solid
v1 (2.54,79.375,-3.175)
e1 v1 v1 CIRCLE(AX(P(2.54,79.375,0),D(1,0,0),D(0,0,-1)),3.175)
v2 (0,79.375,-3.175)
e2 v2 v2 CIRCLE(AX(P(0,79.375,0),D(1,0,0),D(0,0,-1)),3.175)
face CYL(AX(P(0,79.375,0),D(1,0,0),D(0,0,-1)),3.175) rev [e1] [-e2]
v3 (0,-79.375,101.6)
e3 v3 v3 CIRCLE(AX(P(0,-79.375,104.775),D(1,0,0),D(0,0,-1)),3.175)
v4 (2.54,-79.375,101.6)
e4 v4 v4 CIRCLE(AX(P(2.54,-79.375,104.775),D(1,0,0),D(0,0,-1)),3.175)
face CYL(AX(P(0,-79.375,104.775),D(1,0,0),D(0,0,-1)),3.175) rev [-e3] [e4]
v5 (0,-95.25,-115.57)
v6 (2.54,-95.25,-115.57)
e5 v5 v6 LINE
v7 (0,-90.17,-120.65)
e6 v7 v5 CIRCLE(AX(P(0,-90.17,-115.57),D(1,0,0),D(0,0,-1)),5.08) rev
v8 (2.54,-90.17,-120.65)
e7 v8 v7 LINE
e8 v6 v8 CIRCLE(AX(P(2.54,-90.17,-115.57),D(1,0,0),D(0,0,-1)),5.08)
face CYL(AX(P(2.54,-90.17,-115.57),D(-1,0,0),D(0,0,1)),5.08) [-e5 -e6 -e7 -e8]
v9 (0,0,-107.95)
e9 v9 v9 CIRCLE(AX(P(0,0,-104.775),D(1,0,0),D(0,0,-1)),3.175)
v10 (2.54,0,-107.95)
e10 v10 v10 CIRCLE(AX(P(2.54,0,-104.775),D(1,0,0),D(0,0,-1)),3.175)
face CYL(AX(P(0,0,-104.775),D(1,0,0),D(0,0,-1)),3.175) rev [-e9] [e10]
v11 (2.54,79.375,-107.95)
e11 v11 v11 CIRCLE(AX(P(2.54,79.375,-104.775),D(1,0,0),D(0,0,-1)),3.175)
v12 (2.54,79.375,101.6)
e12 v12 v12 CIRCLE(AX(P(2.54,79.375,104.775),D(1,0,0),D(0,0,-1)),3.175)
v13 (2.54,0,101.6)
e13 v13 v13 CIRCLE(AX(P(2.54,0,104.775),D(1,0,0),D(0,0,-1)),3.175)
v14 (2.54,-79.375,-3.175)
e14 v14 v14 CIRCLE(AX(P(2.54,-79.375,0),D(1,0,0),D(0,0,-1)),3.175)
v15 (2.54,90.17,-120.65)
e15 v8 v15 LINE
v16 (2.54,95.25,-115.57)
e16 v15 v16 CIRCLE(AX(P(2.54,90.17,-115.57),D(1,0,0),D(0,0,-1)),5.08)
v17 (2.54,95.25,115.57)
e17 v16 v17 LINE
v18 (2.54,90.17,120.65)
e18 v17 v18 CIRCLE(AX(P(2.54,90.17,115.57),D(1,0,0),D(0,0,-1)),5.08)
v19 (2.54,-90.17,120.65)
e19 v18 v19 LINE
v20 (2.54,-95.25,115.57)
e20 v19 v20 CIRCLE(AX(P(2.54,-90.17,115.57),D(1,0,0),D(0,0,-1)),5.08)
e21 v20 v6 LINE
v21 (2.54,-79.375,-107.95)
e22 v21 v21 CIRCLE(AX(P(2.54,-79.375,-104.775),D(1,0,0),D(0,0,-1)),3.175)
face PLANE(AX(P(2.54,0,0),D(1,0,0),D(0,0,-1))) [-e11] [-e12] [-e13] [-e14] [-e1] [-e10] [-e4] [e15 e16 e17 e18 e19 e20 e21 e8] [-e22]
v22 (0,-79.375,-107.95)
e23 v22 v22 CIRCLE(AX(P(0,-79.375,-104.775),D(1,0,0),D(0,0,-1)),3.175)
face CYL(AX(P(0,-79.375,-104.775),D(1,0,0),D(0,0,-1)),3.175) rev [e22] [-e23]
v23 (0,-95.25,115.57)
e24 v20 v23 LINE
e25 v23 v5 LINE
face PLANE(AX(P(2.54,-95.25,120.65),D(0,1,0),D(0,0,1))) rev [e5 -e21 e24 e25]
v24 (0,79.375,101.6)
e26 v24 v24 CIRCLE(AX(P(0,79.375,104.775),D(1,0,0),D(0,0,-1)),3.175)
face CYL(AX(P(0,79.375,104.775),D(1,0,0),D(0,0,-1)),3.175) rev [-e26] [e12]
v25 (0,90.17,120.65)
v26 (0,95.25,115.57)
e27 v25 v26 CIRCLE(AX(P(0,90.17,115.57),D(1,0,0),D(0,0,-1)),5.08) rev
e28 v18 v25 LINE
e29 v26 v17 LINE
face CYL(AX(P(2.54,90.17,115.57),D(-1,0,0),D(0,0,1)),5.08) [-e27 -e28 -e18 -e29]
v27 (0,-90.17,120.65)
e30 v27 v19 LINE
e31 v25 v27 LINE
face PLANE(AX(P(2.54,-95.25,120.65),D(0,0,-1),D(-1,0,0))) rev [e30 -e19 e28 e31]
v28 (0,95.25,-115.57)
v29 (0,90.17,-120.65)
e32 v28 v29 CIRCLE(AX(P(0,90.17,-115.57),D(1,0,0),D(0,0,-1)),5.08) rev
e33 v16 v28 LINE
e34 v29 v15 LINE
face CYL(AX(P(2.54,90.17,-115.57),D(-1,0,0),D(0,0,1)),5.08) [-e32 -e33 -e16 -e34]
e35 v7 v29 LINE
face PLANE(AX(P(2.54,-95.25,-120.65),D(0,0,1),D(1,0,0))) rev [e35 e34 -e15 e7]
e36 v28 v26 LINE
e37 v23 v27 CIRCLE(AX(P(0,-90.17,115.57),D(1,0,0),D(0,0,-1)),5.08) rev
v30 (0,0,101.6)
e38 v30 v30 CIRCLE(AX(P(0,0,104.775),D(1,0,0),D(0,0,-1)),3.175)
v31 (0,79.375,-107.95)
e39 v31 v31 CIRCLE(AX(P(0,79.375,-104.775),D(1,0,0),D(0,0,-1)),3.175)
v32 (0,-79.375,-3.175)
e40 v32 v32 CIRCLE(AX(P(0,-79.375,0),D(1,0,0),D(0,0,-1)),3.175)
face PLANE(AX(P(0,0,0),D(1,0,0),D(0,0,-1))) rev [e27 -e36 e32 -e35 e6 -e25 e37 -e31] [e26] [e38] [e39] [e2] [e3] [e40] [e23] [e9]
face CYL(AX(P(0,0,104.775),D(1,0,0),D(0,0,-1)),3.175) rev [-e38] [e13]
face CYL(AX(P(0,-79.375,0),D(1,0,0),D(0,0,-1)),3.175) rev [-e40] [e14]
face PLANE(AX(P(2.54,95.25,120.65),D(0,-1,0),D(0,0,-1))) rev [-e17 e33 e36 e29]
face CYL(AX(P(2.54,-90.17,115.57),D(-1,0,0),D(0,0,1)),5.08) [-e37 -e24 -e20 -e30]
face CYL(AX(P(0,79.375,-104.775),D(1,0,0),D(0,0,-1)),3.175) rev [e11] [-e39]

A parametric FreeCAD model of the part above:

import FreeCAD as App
import Part
import Sketcher
Q = App.Units.Quantity


def edges_at(feature, points):
    """Names of the edges that pass closest to the given points."""
    edges = feature.Shape.Edges
    near = lambda p: min(range(len(edges)), key=lambda i: edges[i].distToShape(Part.Vertex(*p))[0])
    return sorted({f"Edge{near(p) + 1}" for p in points})

doc = App.newDocument("Part")
body = doc.addObject("PartDesign::Body", "Body")

# Sketch on YZ plane
sketch1 = body.newObject("Sketcher::SketchObject", "Sketch")
sketch1.AttachmentSupport = (doc.getObject("YZ_Plane"), [""])
sketch1.MapMode = "FlatFace"
sketch1.addGeometry(Part.LineSegment(App.Vector(-95, 121, 0), App.Vector(-95, -121, 0)), False)
sketch1.addGeometry(Part.LineSegment(App.Vector(-95, -121, 0), App.Vector(95, -121, 0)), False)
sketch1.addGeometry(Part.LineSegment(App.Vector(95, -121, 0), App.Vector(95, 121, 0)), False)
sketch1.addGeometry(Part.LineSegment(App.Vector(95, 121, 0), App.Vector(-95, 121, 0)), False)
sketch1.addConstraint(Sketcher.Constraint("Coincident", 0, 2, 1, 1))
sketch1.addConstraint(Sketcher.Constraint("Coincident", 1, 2, 2, 1))
sketch1.addConstraint(Sketcher.Constraint("Coincident", 2, 2, 3, 1))
sketch1.addConstraint(Sketcher.Constraint("Coincident", 3, 2, 0, 1))
sketch1.addConstraint(Sketcher.Constraint("Vertical", 0))
sketch1.addConstraint(Sketcher.Constraint("Horizontal", 1))
sketch1.addConstraint(Sketcher.Constraint("Vertical", 2))
sketch1.addConstraint(Sketcher.Constraint("Horizontal", 3))
sketch1.addConstraint(Sketcher.Constraint("Symmetric", 0, 2, 2, 2, -1, 1))
sketch1.addConstraint(Sketcher.Constraint("DistanceX", 1, 1, 1, 2, Q("7.5 in")))
sketch1.addConstraint(Sketcher.Constraint("DistanceY", 0, 2, 0, 1, Q("9.5 in")))
pad1 = body.newObject("PartDesign::Pad", "Pad")
pad1.Profile = sketch1
pad1.Length = Q("0.1 in")
doc.recompute()

fillet = body.newObject("PartDesign::Fillet", "Fillet")
fillet.Base = (pad1, edges_at(pad1, [
    (1.27, 95.25, -120.65),
    (1.27, -95.25, -120.65),
    (1.27, -95.25, 120.65),
    (1.27, 95.25, 120.65),
]))
fillet.Radius = Q("0.2 in")

# Sketch on YZ plane
sketch2 = body.newObject("Sketcher::SketchObject", "Sketch001")
sketch2.AttachmentSupport = (doc.getObject("YZ_Plane"), [""])
sketch2.MapMode = "FlatFace"
sketch2.AttachmentOffset = App.Placement(App.Vector(0, 0, 0.1 * 25.4), App.Rotation())
sketch2.addGeometry(Part.Circle(App.Vector(0, 574.7, 0), App.Vector(0, 0, 1), 3.2), False)
sketch2.addGeometry(Part.Circle(App.Vector(79.4, 725.5, 0), App.Vector(0, 0, 1), 3.2), False)
sketch2.addGeometry(Part.Circle(App.Vector(79.4, 831.9, 0), App.Vector(0, 0, 1), 3.2), False)
sketch2.addGeometry(Part.Circle(App.Vector(79.4, 938.2, 0), App.Vector(0, 0, 1), 3.2), False)
sketch2.addGeometry(Part.Circle(App.Vector(79.4, 1044.6, 0), App.Vector(0, 0, 1), 3.2), False)
sketch2.addGeometry(Part.Circle(App.Vector(-79.4, 1044.6, 0), App.Vector(0, 0, 1), 3.2), False)
sketch2.addGeometry(Part.Circle(App.Vector(0, 1044.6, 0), App.Vector(0, 0, 1), 3.2), False)
sketch2.addGeometry(Part.Circle(App.Vector(79.4, 574.7, 0), App.Vector(0, 0, 1), 3.2), False)
sketch2.addGeometry(Part.Circle(App.Vector(79.4, 468.3, 0), App.Vector(0, 0, 1), 3.2), False)
sketch2.addGeometry(Part.Circle(App.Vector(-79.4, 574.7, 0), App.Vector(0, 0, 1), 3.2), False)
sketch2.addGeometry(Part.Circle(App.Vector(-79.4, 725.5, 0), App.Vector(0, 0, 1), 3.2), False)
sketch2.addGeometry(Part.Circle(App.Vector(-79.4, 619.1, 0), App.Vector(0, 0, 1), 3.2), False)
sketch2.addGeometry(Part.Circle(App.Vector(0, 619.1, 0), App.Vector(0, 0, 1), 3.2), False)
sketch2.addGeometry(Part.Circle(App.Vector(79.4, 619.1, 0), App.Vector(0, 0, 1), 3.2), False)
sketch2.addGeometry(Part.Circle(App.Vector(79.4, 255.6, 0), App.Vector(0, 0, 1), 3.2), False)
sketch2.addGeometry(Part.Circle(App.Vector(79.4, 361.9, 0), App.Vector(0, 0, 1), 3.2), False)
sketch2.addGeometry(Part.Circle(App.Vector(-79.4, 938.2, 0), App.Vector(0, 0, 1), 3.2), False)
sketch2.addGeometry(Part.Circle(App.Vector(-79.4, 831.9, 0), App.Vector(0, 0, 1), 3.2), False)
sketch2.addGeometry(Part.Circle(App.Vector(-79.4, 149.2, 0), App.Vector(0, 0, 1), 3.2), False)
sketch2.addGeometry(Part.Circle(App.Vector(-79.4, 255.6, 0), App.Vector(0, 0, 1), 3.2), False)
sketch2.addGeometry(Part.Circle(App.Vector(79.4, 149.2, 0), App.Vector(0, 0, 1), 3.2), False)
sketch2.addGeometry(Part.Circle(App.Vector(-79.4, 361.9, 0), App.Vector(0, 0, 1), 3.2), False)
sketch2.addGeometry(Part.Circle(App.Vector(0, 149.2, 0), App.Vector(0, 0, 1), 3.2), False)
sketch2.addGeometry(Part.Circle(App.Vector(-79.4, 468.3, 0), App.Vector(0, 0, 1), 3.2), False)
sketch2.addGeometry(Part.Circle(App.Vector(79.4, 0, 0), App.Vector(0, 0, 1), 3.2), False)
sketch2.addGeometry(Part.Circle(App.Vector(-79.4, 0, 0), App.Vector(0, 0, 1), 3.2), False)
sketch2.addGeometry(Part.Circle(App.Vector(-79.4, 104.8, 0), App.Vector(0, 0, 1), 3.2), False)
sketch2.addGeometry(Part.Circle(App.Vector(79.4, 104.8, 0), App.Vector(0, 0, 1), 3.2), False)
sketch2.addGeometry(Part.Circle(App.Vector(0, -104.8, 0), App.Vector(0, 0, 1), 3.2), False)
sketch2.addGeometry(Part.Circle(App.Vector(0, 104.8, 0), App.Vector(0, 0, 1), 3.2), False)
sketch2.addGeometry(Part.Circle(App.Vector(-79.4, -104.8, 0), App.Vector(0, 0, 1), 3.2), False)
sketch2.addGeometry(Part.Circle(App.Vector(79.4, -104.8, 0), App.Vector(0, 0, 1), 3.2), False)
sketch2.addConstraint(Sketcher.Constraint("Equal", 0, 1))
sketch2.addConstraint(Sketcher.Constraint("Equal", 1, 2))
sketch2.addConstraint(Sketcher.Constraint("Equal", 2, 3))
sketch2.addConstraint(Sketcher.Constraint("Equal", 3, 4))
sketch2.addConstraint(Sketcher.Constraint("Equal", 4, 5))
sketch2.addConstraint(Sketcher.Constraint("Equal", 5, 6))
sketch2.addConstraint(Sketcher.Constraint("Equal", 6, 7))
sketch2.addConstraint(Sketcher.Constraint("Equal", 7, 8))
sketch2.addConstraint(Sketcher.Constraint("Equal", 8, 9))
sketch2.addConstraint(Sketcher.Constraint("Equal", 9, 10))
sketch2.addConstraint(Sketcher.Constraint("Equal", 10, 11))
sketch2.addConstraint(Sketcher.Constraint("Equal", 11, 12))
sketch2.addConstraint(Sketcher.Constraint("Equal", 12, 13))
sketch2.addConstraint(Sketcher.Constraint("Equal", 13, 14))
sketch2.addConstraint(Sketcher.Constraint("Equal", 14, 15))
sketch2.addConstraint(Sketcher.Constraint("Equal", 15, 16))
sketch2.addConstraint(Sketcher.Constraint("Equal", 16, 17))
sketch2.addConstraint(Sketcher.Constraint("Equal", 17, 18))
sketch2.addConstraint(Sketcher.Constraint("Equal", 18, 19))
sketch2.addConstraint(Sketcher.Constraint("Equal", 19, 20))
sketch2.addConstraint(Sketcher.Constraint("Equal", 20, 21))
sketch2.addConstraint(Sketcher.Constraint("Equal", 21, 22))
sketch2.addConstraint(Sketcher.Constraint("Equal", 22, 23))
sketch2.addConstraint(Sketcher.Constraint("Equal", 23, 24))
sketch2.addConstraint(Sketcher.Constraint("Equal", 24, 25))
sketch2.addConstraint(Sketcher.Constraint("Equal", 25, 26))
sketch2.addConstraint(Sketcher.Constraint("Equal", 26, 27))
sketch2.addConstraint(Sketcher.Constraint("Equal", 27, 28))
sketch2.addConstraint(Sketcher.Constraint("Equal", 28, 29))
sketch2.addConstraint(Sketcher.Constraint("Equal", 29, 30))
sketch2.addConstraint(Sketcher.Constraint("Equal", 30, 31))
sketch2.addConstraint(Sketcher.Constraint("Symmetric", 24, 3, 25, 3, -1, 1))
sketch2.addConstraint(Sketcher.Constraint("Symmetric", 28, 3, 29, 3, -1, 1))
sketch2.addConstraint(Sketcher.Constraint("Symmetric", 27, 3, 30, 3, -1, 1))
sketch2.addConstraint(Sketcher.Constraint("Symmetric", 26, 3, 31, 3, -1, 1))
sketch2.addConstraint(Sketcher.Constraint("Symmetric", 4, 3, 5, 3, -2))
sketch2.addConstraint(Sketcher.Constraint("Symmetric", 7, 3, 9, 3, -2))
sketch2.addConstraint(Sketcher.Constraint("Symmetric", 1, 3, 10, 3, -2))
sketch2.addConstraint(Sketcher.Constraint("Symmetric", 11, 3, 13, 3, -2))
sketch2.addConstraint(Sketcher.Constraint("Symmetric", 3, 3, 16, 3, -2))
sketch2.addConstraint(Sketcher.Constraint("Symmetric", 2, 3, 17, 3, -2))
sketch2.addConstraint(Sketcher.Constraint("Symmetric", 14, 3, 19, 3, -2))
sketch2.addConstraint(Sketcher.Constraint("Symmetric", 18, 3, 20, 3, -2))
sketch2.addConstraint(Sketcher.Constraint("Symmetric", 15, 3, 21, 3, -2))
sketch2.addConstraint(Sketcher.Constraint("Symmetric", 8, 3, 23, 3, -2))
sketch2.addConstraint(Sketcher.Constraint("Symmetric", 26, 3, 27, 3, -2))
sketch2.addConstraint(Sketcher.Constraint("PointOnObject", 0, 3, -2))
sketch2.addConstraint(Sketcher.Constraint("PointOnObject", 6, 3, -2))
sketch2.addConstraint(Sketcher.Constraint("PointOnObject", 12, 3, -2))
sketch2.addConstraint(Sketcher.Constraint("PointOnObject", 22, 3, -2))
sketch2.addConstraint(Sketcher.Constraint("PointOnObject", 24, 3, -1))
sketch2.addConstraint(Sketcher.Constraint("PointOnObject", 28, 3, -2))
sketch2.addConstraint(Sketcher.Constraint("Horizontal", 5, 3, 6, 3))
sketch2.addConstraint(Sketcher.Constraint("Horizontal", 0, 3, 7, 3))
sketch2.addConstraint(Sketcher.Constraint("Horizontal", 11, 3, 12, 3))
sketch2.addConstraint(Sketcher.Constraint("Horizontal", 20, 3, 22, 3))
sketch2.addConstraint(Sketcher.Constraint("Horizontal", 27, 3, 29, 3))
sketch2.addConstraint(Sketcher.Constraint("Vertical", 1, 3, 2, 3))
sketch2.addConstraint(Sketcher.Constraint("Vertical", 2, 3, 3, 3))
sketch2.addConstraint(Sketcher.Constraint("Vertical", 3, 3, 4, 3))
sketch2.addConstraint(Sketcher.Constraint("Vertical", 4, 3, 7, 3))
sketch2.addConstraint(Sketcher.Constraint("Vertical", 7, 3, 8, 3))
sketch2.addConstraint(Sketcher.Constraint("Vertical", 10, 3, 11, 3))
sketch2.addConstraint(Sketcher.Constraint("Vertical", 13, 3, 14, 3))
sketch2.addConstraint(Sketcher.Constraint("Vertical", 14, 3, 15, 3))
sketch2.addConstraint(Sketcher.Constraint("Vertical", 17, 3, 18, 3))
sketch2.addConstraint(Sketcher.Constraint("Vertical", 20, 3, 24, 3))
sketch2.addConstraint(Sketcher.Constraint("Vertical", 25, 3, 26, 3))
sketch2.addConstraint(Sketcher.Constraint("Diameter", 0, Q("0.25 in")))
sketch2.addConstraint(Sketcher.Constraint("DistanceY", 28, 3, 22, 3, Q("10 in")))
sketch2.addConstraint(Sketcher.Constraint("DistanceY", 0, 3, 4, 3, Q("18.5 in")))
sketch2.addConstraint(Sketcher.Constraint("DistanceY", 8, 3, 3, 3, Q("18.5 in")))
sketch2.addConstraint(Sketcher.Constraint("DistanceY", -1, 1, 2, 3, Q("32.75 in")))
sketch2.addConstraint(Sketcher.Constraint("DistanceY", -1, 1, 15, 3, Q("14.25 in")))
sketch2.addConstraint(Sketcher.Constraint("DistanceX", 5, 3, 4, 3, Q("6.25 in")))
sketch2.addConstraint(Sketcher.Constraint("DistanceY", 9, 3, 11, 3, Q("1.75 in")))
sketch2.addConstraint(Sketcher.Constraint("DistanceY", 18, 3, 9, 3, Q("16.75 in")))
sketch2.addConstraint(Sketcher.Constraint("DistanceY", 26, 3, 18, 3, Q("1.75 in")))
sketch2.addConstraint(Sketcher.Constraint("DistanceY", -1, 1, 1, 3, Q("28.5625 in")))
sketch2.addConstraint(Sketcher.Constraint("DistanceY", -1, 1, 3, 3, Q("36.9375 in")))
sketch2.addConstraint(Sketcher.Constraint("DistanceY", -1, 1, 14, 3, Q("10.0625 in")))
pocket1 = body.newObject("PartDesign::Pocket", "Pocket")
pocket1.Profile = sketch2
pocket1.Type = "ThroughAll"
pocket1.Midplane = True

doc.recompute()
